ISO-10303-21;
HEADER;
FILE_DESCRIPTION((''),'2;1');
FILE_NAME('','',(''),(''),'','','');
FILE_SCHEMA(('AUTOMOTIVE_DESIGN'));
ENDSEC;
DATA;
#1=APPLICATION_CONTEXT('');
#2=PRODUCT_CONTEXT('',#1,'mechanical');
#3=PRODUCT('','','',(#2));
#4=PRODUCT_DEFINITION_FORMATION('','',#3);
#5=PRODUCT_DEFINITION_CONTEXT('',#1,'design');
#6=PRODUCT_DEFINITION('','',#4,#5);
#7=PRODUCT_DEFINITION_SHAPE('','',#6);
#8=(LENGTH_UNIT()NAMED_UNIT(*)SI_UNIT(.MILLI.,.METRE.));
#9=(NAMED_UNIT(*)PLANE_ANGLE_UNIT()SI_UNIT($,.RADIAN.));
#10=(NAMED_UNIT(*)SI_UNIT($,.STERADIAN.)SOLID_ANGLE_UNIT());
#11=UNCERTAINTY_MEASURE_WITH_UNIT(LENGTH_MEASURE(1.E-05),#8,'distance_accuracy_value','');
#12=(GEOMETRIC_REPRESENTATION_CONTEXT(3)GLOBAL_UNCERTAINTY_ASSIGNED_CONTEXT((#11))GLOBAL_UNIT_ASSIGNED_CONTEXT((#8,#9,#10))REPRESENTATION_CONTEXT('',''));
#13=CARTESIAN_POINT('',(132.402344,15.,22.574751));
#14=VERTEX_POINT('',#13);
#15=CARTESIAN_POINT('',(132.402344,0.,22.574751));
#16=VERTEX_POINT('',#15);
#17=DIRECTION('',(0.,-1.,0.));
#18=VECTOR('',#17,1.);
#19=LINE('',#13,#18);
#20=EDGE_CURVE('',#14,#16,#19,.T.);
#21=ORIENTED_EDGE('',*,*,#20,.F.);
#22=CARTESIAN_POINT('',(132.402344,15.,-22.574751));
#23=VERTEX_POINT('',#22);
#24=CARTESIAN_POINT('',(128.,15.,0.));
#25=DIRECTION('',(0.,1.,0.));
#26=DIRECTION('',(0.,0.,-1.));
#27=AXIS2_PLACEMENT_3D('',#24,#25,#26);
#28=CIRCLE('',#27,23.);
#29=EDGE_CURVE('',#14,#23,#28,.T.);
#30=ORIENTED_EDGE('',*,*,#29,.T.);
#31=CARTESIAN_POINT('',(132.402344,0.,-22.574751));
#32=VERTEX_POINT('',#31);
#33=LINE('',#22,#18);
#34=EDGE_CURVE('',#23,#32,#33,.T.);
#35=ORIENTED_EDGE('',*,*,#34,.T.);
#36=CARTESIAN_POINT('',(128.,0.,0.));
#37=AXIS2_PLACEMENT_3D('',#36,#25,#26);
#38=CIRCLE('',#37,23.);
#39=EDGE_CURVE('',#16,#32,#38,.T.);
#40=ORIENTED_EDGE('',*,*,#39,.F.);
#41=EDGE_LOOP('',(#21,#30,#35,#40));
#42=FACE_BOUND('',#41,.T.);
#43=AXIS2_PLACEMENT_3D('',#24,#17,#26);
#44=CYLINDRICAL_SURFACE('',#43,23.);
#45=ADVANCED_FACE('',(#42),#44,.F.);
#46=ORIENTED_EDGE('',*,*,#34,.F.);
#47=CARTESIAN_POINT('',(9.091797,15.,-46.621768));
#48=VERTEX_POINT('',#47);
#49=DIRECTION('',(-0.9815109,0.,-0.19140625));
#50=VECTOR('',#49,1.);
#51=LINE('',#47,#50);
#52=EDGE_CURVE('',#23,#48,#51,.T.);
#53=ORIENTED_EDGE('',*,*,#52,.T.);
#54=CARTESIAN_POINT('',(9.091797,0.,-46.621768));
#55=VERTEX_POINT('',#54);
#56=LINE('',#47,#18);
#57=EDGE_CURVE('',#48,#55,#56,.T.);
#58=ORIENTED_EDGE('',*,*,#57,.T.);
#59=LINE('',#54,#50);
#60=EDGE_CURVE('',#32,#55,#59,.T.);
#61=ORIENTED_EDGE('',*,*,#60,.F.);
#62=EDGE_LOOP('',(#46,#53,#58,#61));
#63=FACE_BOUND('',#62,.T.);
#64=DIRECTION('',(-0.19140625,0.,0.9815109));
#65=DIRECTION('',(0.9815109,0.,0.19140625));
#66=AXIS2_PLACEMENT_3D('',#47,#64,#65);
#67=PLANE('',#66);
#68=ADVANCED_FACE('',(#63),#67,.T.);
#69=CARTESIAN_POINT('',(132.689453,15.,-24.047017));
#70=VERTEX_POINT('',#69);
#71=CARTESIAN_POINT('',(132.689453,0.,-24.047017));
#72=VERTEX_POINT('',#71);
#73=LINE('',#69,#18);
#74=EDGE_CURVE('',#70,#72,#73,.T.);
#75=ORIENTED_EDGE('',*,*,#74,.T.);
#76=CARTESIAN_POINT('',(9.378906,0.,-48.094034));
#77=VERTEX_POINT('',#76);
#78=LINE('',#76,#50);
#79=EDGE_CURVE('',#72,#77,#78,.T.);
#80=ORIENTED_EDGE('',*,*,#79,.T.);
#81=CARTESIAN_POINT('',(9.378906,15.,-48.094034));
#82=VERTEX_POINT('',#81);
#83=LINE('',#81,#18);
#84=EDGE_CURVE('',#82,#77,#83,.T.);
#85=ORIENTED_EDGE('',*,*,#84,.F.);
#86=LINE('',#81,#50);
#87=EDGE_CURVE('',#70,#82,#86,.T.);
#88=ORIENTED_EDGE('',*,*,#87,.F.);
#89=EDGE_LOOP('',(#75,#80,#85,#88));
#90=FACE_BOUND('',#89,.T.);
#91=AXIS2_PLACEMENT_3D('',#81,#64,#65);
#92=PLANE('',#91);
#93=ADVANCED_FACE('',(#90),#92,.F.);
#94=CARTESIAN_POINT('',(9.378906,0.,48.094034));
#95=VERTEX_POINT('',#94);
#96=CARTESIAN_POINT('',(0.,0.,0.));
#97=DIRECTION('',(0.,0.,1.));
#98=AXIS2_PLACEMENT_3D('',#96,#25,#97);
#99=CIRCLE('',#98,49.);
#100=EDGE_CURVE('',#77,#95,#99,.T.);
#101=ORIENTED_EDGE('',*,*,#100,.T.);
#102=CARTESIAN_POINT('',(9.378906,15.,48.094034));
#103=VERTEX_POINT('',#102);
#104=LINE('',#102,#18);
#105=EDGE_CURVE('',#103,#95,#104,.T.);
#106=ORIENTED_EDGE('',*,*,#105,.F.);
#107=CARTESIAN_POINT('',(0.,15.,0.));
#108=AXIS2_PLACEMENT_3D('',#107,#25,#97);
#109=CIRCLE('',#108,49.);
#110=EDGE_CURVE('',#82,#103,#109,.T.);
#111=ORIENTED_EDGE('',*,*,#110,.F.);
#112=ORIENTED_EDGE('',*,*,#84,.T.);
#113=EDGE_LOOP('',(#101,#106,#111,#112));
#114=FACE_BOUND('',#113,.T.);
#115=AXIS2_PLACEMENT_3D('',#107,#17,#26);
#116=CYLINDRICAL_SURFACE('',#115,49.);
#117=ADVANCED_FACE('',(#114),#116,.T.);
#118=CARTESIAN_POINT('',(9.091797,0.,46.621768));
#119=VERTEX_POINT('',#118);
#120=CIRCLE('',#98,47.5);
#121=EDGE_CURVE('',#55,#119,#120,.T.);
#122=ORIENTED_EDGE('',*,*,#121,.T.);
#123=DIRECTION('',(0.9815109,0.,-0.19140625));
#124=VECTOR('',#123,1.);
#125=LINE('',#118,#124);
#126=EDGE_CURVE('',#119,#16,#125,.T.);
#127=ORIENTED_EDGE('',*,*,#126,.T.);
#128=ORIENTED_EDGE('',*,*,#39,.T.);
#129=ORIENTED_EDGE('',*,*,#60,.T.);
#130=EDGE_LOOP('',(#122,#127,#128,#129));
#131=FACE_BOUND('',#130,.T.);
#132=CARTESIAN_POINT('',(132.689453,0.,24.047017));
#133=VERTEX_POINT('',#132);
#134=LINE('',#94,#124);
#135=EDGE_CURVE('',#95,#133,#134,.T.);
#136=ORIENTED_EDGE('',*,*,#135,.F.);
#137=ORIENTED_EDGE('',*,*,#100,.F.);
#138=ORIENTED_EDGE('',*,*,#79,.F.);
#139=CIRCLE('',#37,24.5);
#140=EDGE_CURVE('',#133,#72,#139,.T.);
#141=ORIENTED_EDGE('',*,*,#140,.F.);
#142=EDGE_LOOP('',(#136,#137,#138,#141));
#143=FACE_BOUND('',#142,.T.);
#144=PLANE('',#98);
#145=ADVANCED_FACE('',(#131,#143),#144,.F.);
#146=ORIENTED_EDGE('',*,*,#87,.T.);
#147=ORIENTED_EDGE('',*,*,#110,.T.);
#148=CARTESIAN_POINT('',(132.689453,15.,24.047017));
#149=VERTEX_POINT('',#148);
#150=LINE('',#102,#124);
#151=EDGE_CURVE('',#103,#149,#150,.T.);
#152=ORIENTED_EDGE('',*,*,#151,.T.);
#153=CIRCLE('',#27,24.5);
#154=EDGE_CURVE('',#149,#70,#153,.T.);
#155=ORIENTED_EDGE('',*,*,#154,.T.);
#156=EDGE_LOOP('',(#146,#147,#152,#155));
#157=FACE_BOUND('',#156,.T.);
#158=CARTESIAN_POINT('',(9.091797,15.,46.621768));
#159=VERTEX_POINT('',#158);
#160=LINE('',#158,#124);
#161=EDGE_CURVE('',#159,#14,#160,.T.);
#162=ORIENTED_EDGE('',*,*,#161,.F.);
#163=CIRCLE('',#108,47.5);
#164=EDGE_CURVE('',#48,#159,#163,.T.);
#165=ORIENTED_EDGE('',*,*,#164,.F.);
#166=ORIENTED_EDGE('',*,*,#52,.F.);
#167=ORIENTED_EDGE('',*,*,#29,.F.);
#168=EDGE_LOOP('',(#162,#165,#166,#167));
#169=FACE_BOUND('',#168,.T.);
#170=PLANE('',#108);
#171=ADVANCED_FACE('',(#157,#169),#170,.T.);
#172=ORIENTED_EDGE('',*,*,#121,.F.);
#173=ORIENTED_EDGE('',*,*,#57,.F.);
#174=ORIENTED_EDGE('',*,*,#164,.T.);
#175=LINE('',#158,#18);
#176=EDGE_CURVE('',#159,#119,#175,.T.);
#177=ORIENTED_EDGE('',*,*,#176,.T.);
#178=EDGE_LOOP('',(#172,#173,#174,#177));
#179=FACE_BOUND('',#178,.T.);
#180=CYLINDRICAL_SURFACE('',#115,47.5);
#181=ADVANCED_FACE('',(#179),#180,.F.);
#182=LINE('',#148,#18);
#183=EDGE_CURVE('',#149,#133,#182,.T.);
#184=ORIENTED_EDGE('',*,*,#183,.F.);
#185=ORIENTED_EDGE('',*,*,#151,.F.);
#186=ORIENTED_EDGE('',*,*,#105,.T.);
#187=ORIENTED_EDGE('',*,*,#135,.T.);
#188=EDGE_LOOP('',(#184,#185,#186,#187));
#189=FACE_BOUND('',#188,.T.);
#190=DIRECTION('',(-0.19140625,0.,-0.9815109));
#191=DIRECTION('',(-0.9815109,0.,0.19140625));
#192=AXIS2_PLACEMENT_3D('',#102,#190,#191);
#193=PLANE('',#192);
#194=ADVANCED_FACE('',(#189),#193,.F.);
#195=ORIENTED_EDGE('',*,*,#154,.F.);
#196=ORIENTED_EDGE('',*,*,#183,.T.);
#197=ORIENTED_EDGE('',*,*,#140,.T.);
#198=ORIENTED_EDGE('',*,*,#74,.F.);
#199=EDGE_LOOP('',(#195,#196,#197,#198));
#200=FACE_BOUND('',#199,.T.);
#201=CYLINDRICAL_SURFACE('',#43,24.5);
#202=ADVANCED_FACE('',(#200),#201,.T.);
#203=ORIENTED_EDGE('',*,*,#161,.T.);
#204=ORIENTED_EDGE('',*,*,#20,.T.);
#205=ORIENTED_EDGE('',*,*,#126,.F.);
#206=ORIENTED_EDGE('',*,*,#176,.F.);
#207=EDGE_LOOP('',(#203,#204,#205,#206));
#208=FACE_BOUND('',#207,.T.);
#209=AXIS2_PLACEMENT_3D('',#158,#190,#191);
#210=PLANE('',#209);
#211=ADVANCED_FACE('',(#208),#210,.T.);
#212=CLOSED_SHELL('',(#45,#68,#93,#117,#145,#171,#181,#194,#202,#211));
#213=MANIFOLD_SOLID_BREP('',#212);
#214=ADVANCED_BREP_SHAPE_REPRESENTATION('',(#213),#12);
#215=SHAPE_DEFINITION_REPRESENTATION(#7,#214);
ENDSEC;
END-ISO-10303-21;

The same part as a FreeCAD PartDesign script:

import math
import FreeCAD as App
import Part
import Sketcher

V = App.Vector
Q = App.Units.Quantity

doc = App.newDocument("Part")
body = doc.addObject("PartDesign::Body", "Body")

# Sketch on XZ plane
sketch1 = body.newObject("Sketcher::SketchObject", "Sketch")
sketch1.AttachmentSupport = (doc.getObject("XZ_Plane"), [""])
sketch1.MapMode = "FlatFace"
sketch1.addGeometry([
    Part.LineSegment(V(9, 48, 0), V(133, 24, 0)),  # 0
    Part.ArcOfCircle(Part.Circle(V(128, 0, 0), V(0, 0, 1), 24), math.radians(-79), math.radians(79)),  # 1
    Part.LineSegment(V(133, -24, 0), V(9, -48, 0)),  # 2
    Part.ArcOfCircle(Part.Circle(V(0, 0, 0), V(0, 0, 1), 49), math.radians(79), math.radians(281)),  # 3
    Part.ArcOfCircle(Part.Circle(V(0, 0, 0), V(0, 0, 1), 48), math.radians(79), math.radians(281)),  # 4
    Part.LineSegment(V(9, -47, 0), V(132, -23, 0)),  # 5
    Part.ArcOfCircle(Part.Circle(V(128, 0, 0), V(0, 0, 1), 23), math.radians(-79), math.radians(79)),  # 6
    Part.LineSegment(V(132, 23, 0), V(9, 47, 0)),  # 7
], False)
sketch1.addConstraint([
    Sketcher.Constraint("Tangent", 0, 2, 1, 2),
    Sketcher.Constraint("Tangent", 1, 1, 2, 1),
    Sketcher.Constraint("Tangent", 2, 2, 3, 2),
    Sketcher.Constraint("Tangent", 3, 1, 0, 1),
    Sketcher.Constraint("Tangent", 4, 2, 5, 1),
    Sketcher.Constraint("Tangent", 5, 2, 6, 1),
    Sketcher.Constraint("Tangent", 6, 2, 7, 1),
    Sketcher.Constraint("Tangent", 7, 2, 4, 1),
    Sketcher.Constraint("Coincident", 3, 3, -1, 1),
    Sketcher.Constraint("Coincident", 4, 3, -1, 1),
    Sketcher.Constraint("Coincident", 6, 3, 1, 3),
    Sketcher.Constraint("PointOnObject", 1, 3, -1),
    Sketcher.Constraint("Parallel", 2, 5),
    Sketcher.Constraint("Radius", 3, Q("49 mm")),
    Sketcher.Constraint("Radius", 6, Q("23 mm")),
    Sketcher.Constraint("Radius", 1, Q("24.5 mm")),
    Sketcher.Constraint("DistanceX", -1, 1, 1, 3, Q("128 mm")),
])
pad1 = body.newObject("PartDesign::Pad", "Pad")
pad1.Profile = sketch1
pad1.Length = 15
pad1.Reversed = True

doc.recompute()
